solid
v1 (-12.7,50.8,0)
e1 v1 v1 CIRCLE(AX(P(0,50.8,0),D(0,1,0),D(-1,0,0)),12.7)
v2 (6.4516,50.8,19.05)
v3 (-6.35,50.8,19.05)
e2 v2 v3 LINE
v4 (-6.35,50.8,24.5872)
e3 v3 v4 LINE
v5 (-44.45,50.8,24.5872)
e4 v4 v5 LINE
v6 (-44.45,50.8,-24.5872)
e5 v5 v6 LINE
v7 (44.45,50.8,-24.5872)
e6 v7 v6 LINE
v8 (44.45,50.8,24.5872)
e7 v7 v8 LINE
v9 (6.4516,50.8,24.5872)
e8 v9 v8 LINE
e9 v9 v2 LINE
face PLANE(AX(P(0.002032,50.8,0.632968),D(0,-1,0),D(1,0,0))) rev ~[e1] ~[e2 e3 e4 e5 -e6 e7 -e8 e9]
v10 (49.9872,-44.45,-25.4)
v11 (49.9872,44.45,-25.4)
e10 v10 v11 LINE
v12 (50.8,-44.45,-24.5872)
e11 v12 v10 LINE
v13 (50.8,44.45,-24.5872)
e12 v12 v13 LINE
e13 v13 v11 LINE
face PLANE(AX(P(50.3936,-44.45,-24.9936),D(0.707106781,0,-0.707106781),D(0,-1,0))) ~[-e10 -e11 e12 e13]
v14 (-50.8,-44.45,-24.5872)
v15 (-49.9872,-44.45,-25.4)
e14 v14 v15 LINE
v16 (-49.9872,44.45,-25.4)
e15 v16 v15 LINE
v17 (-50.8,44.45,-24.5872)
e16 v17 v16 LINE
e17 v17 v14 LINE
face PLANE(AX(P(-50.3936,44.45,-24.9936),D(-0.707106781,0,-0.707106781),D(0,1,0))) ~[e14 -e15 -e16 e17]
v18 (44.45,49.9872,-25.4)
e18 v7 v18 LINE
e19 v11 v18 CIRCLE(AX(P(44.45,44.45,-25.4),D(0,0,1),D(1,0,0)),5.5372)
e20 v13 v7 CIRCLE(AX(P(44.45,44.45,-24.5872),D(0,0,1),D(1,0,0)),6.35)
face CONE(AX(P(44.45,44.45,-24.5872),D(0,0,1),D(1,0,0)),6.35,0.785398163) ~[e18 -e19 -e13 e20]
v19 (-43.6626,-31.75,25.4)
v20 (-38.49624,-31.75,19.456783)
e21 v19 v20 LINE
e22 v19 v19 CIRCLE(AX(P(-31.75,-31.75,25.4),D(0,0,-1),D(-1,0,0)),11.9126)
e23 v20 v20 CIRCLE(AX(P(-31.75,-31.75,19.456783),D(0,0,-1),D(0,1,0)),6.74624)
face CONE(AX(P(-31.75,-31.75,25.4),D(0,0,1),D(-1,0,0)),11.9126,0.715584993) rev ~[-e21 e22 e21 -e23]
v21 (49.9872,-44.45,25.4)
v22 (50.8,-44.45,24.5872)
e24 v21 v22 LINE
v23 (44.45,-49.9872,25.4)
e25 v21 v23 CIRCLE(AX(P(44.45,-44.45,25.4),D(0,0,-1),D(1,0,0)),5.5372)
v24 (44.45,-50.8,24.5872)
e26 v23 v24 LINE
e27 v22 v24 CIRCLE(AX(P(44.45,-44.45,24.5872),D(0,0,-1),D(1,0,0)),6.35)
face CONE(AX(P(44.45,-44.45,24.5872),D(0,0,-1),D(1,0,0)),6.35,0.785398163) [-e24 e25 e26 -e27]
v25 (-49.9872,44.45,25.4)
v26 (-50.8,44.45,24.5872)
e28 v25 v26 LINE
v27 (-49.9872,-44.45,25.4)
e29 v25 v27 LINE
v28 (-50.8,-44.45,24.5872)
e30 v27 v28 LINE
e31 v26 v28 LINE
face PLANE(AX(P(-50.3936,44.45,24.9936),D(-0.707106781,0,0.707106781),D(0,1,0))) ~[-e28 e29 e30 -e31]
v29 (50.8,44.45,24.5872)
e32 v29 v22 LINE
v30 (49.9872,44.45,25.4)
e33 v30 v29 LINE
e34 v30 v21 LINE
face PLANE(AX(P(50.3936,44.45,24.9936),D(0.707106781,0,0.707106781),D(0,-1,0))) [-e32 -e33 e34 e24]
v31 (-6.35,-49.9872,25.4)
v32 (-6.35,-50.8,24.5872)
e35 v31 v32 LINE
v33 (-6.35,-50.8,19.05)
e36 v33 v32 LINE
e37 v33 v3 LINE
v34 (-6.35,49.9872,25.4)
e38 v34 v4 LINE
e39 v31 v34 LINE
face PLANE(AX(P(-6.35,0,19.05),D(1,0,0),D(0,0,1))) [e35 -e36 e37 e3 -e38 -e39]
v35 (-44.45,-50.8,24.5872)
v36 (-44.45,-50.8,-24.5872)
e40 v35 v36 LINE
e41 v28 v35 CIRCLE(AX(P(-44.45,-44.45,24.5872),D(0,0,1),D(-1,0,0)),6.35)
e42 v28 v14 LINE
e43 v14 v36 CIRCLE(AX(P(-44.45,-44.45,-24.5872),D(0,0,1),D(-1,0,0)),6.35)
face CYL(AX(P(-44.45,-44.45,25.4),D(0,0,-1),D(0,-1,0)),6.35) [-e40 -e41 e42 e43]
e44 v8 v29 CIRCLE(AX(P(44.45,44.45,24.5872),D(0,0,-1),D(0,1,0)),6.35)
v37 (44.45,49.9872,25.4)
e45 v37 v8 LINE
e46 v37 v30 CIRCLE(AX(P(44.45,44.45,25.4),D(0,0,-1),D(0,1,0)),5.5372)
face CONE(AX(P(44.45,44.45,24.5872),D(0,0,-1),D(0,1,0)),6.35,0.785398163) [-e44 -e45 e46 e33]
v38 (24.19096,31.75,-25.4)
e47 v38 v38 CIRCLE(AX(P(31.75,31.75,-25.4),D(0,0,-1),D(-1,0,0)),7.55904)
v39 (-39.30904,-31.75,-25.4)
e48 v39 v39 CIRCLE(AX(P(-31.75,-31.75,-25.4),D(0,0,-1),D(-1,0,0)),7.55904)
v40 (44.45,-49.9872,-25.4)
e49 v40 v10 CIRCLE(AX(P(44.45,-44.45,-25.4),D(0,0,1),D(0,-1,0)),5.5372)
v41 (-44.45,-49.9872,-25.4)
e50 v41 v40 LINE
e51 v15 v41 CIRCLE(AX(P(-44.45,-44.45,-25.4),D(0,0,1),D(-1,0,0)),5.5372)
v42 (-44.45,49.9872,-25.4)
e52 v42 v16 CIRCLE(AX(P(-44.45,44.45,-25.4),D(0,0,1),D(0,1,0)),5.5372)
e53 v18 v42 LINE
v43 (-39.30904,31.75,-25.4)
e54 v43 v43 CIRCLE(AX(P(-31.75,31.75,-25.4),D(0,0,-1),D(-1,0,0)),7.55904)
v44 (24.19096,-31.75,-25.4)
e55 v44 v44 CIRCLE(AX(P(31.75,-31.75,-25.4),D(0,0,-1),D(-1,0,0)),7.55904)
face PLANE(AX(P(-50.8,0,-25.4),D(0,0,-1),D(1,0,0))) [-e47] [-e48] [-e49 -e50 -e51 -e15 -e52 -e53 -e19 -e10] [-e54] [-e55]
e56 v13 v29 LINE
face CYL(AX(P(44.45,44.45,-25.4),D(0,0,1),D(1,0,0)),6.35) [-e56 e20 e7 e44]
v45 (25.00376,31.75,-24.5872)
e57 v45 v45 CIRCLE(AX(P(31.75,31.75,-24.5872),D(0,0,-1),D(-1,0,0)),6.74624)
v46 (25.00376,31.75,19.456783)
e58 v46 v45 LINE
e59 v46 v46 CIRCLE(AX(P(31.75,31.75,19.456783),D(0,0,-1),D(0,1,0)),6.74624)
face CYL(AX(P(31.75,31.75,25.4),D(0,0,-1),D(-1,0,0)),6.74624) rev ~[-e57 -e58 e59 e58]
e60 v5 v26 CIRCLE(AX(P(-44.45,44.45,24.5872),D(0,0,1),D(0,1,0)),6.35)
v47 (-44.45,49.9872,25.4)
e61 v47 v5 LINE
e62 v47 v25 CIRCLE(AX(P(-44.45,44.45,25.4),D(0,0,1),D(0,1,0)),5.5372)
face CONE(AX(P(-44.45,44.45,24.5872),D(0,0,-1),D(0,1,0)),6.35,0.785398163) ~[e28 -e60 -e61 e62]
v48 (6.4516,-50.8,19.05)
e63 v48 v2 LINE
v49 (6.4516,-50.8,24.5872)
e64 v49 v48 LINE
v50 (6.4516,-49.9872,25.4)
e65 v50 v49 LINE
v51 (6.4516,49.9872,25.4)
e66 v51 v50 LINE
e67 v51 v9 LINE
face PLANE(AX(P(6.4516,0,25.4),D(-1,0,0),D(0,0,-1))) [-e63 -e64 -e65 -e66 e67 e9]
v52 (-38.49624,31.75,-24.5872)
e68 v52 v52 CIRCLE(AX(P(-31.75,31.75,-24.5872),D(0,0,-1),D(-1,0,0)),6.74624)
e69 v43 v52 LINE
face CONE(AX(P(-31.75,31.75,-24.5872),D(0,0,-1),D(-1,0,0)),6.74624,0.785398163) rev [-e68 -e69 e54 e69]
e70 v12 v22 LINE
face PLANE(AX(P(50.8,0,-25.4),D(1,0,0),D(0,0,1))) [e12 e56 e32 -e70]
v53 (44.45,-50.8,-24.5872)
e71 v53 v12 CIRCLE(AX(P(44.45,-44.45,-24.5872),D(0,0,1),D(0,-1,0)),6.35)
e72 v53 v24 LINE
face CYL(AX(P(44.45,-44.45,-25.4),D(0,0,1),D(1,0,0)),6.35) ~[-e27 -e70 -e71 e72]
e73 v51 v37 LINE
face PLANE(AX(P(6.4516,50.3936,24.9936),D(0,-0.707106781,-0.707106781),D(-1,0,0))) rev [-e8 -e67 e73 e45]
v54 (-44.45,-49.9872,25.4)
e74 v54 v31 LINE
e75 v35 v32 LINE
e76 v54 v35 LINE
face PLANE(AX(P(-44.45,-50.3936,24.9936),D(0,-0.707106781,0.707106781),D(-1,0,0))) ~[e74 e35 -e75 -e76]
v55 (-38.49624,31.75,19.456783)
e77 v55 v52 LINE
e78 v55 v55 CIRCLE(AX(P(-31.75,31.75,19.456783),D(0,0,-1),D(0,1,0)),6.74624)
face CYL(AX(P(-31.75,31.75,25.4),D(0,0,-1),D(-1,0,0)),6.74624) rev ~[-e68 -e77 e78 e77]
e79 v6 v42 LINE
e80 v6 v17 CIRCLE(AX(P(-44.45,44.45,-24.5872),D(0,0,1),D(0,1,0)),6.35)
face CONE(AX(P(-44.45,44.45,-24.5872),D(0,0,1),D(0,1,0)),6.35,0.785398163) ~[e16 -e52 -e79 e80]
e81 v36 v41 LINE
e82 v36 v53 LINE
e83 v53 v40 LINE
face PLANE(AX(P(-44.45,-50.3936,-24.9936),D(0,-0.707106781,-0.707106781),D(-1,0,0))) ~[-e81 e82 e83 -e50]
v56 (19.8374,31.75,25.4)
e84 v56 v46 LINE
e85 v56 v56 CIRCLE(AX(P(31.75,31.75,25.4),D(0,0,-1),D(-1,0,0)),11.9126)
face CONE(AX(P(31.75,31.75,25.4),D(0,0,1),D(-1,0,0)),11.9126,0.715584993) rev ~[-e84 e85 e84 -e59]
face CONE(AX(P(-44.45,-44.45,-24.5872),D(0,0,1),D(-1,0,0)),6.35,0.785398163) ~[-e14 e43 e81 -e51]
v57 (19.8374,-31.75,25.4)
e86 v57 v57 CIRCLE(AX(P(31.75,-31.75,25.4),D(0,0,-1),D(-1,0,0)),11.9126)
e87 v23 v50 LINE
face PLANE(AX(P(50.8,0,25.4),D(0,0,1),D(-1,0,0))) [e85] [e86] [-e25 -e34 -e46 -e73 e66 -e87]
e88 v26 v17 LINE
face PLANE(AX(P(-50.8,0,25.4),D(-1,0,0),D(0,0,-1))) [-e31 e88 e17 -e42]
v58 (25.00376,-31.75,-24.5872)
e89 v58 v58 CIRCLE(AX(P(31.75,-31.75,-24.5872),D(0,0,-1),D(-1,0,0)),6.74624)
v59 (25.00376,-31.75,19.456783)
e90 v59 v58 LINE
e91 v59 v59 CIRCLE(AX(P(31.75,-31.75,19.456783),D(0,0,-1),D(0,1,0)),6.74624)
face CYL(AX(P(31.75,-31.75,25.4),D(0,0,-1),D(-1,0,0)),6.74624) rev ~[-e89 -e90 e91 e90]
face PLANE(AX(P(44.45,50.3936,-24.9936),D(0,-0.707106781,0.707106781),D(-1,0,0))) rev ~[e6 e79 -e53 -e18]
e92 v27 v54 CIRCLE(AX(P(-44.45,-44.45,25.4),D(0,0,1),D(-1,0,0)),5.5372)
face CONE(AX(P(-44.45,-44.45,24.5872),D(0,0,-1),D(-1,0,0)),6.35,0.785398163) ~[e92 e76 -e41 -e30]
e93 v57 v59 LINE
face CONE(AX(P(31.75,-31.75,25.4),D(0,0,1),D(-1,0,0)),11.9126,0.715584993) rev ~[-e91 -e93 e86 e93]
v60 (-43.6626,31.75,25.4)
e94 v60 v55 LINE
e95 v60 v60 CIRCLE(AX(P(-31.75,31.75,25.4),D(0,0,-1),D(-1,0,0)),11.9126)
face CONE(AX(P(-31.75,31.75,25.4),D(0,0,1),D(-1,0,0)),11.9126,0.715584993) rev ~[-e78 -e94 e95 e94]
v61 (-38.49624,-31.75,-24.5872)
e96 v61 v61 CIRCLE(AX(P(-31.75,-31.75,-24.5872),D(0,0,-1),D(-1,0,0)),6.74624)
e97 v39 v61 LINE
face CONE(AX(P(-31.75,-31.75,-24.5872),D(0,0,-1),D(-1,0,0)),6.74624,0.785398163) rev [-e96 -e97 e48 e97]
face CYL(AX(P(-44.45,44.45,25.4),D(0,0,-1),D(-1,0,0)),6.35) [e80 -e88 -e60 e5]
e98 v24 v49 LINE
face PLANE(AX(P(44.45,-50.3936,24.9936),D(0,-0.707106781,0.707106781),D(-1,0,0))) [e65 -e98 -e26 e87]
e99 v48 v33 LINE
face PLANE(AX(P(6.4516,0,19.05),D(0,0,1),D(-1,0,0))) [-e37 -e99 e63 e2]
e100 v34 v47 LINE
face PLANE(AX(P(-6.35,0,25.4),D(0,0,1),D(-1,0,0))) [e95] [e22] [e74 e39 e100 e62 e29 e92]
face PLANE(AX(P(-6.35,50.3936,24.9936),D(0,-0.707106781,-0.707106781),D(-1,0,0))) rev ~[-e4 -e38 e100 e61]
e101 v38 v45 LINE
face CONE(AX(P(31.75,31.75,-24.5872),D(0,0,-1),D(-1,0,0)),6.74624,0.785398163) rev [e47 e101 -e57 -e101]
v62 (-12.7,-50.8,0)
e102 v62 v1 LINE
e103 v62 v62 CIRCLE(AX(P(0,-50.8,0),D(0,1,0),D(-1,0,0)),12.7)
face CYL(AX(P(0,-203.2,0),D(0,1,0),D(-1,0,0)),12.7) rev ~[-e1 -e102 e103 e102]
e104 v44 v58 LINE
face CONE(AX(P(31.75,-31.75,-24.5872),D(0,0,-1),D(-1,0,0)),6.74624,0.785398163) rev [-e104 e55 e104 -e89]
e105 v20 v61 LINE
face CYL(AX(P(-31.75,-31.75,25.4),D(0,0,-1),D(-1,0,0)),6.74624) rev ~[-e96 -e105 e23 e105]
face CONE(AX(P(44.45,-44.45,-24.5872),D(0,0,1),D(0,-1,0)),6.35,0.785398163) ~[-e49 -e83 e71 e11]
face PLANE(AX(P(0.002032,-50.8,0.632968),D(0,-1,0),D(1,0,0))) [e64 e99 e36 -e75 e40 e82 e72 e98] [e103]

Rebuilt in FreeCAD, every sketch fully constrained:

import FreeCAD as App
import Part
import Sketcher
from FreeCAD import Vector
Q = App.Units.Quantity


def edges_at(feature, points):
    """Names of the edges that pass closest to the given points."""
    edges = feature.Shape.Edges
    near = lambda p: min(range(len(edges)), key=lambda i: edges[i].distToShape(Part.Vertex(*p))[0])
    return sorted({f"Edge{near(p) + 1}" for p in points})


def add_polygon(sketch, points):
    """Adds a closed chain of lines whose ends are joined by coincident constraints."""
    first, n = sketch.GeometryCount, len(points)
    for a, b in zip(points, points[1:] + points[:1]):
        sketch.addGeometry(Part.LineSegment(App.Vector(*a, 0), App.Vector(*b, 0)), False)
    for i in range(n):
        sketch.addConstraint(Sketcher.Constraint("Coincident", first + i, 2, first + (i + 1) % n, 1))

doc = App.newDocument("Part")
body = doc.addObject("PartDesign::Body", "Body")

sketch1 = body.newObject("Sketcher::SketchObject", "Sketch")
sketch1.AttachmentSupport = (doc.getObject("XZ_Plane"), [""])
sketch1.MapMode = "FlatFace"
add_polygon(sketch1, [(-6, 25), (-51, 25), (-51, -25), (51, -25), (51, 25), (6, 25), (6, 19), (-6, 19)])
sketch1.addConstraint([
    Sketcher.Constraint("Horizontal", 0),
    Sketcher.Constraint("Vertical", 1),
    Sketcher.Constraint("Horizontal", 2),
    Sketcher.Constraint("Vertical", 3),
    Sketcher.Constraint("Horizontal", 4),
    Sketcher.Constraint("Vertical", 5),
    Sketcher.Constraint("Horizontal", 6),
    Sketcher.Constraint("Vertical", 7),
    Sketcher.Constraint("Symmetric", 0, 2, 2, 2, -1, 1),
    Sketcher.Constraint("Horizontal", 0, 2, 3, 2),
    Sketcher.Constraint("DistanceX", 2, 1, 2, 2, Q("4 in")),
    Sketcher.Constraint("DistanceY", 1, 2, 1, 1, Q("2 in")),
    Sketcher.Constraint("DistanceX", 0, 2, 0, 1, Q("1.75 in")),
    Sketcher.Constraint("DistanceY", 5, 2, 5, 1, Q("0.25 in")),
    Sketcher.Constraint("DistanceX", 4, 2, 4, 1, Q("1.746 in")),
])
pad1 = body.newObject("PartDesign::Pad", "Pad")
pad1.Profile = sketch1
pad1.Length = Q("4 in")
pad1.Midplane = True

sketch2 = body.newObject("Sketcher::SketchObject", "Sketch001")
sketch2.AttachmentSupport = (doc.getObject("XY_Plane"), [""])
sketch2.MapMode = "FlatFace"
sketch2.AttachmentOffset = App.Placement(Vector(0, 0, 1 * 25.4), App.Rotation())
sketch2.addGeometry([
    Part.Circle(Vector(-32, 32, 0), Vector(0, 0, 1), 7),
    Part.Circle(Vector(32, 32, 0), Vector(0, 0, 1), 7),
    Part.Circle(Vector(-32, -32, 0), Vector(0, 0, 1), 7),
    Part.Circle(Vector(32, -32, 0), Vector(0, 0, 1), 7),
], False)
sketch2.addConstraint([
    Sketcher.Constraint("Equal", 0, 1),
    Sketcher.Constraint("Equal", 1, 2),
    Sketcher.Constraint("Equal", 2, 3),
    Sketcher.Constraint("Symmetric", 1, 3, 2, 3, -1, 1),
    Sketcher.Constraint("Symmetric", 0, 3, 3, 3, -1, 1),
    Sketcher.Constraint("Symmetric", 0, 3, 1, 3, -2),
    Sketcher.Constraint("Diameter", 0, Q("0.5312 in")),
    Sketcher.Constraint("DistanceX", 0, 3, 1, 3, Q("2.5 in")),
    Sketcher.Constraint("DistanceY", 2, 3, 0, 3, Q("2.5 in")),
])
doc.recompute()
hole = body.newObject("PartDesign::Hole", "Hole")
hole.Profile = sketch2
hole.ThreadType = "None"
hole.Diameter = Q("0.5312 in")
hole.DepthType = "ThroughAll"
hole.HoleCutType = "Countersink"
hole.HoleCutDiameter = Q("0.938 in")
hole.HoleCutCountersinkAngle = 82
doc.recompute()

fillet = body.newObject("PartDesign::Fillet", "Fillet")
fillet.Base = (hole, edges_at(hole, [
    (50.8, 50.8, 0),
    (50.8, -50.8, 0),
    (-50.8, -50.8, 0),
    (-50.8, 50.8, 0),
]))
fillet.Radius = Q("0.25 in")
doc.recompute()

chamfer = body.newObject("PartDesign::Chamfer", "Chamfer")
chamfer.Base = (fillet, edges_at(fillet, [
    (-50.8, 0, 25.4),
    (50.8, 0, 25.4),
    (-25.4, 50.8, 25.4),
    (25.451, 50.8, 25.4),
    (-25.4, -50.8, 25.4),
    (25.451, -50.8, 25.4),
    (-50.8, 0, -25.4),
    (-48.94, 48.94, -25.4),
    (-48.94, -48.94, -25.4),
    (0, 50.8, -25.4),
    (0, -50.8, -25.4),
    (48.94, 48.94, -25.4),
    (48.94, -48.94, -25.4),
    (50.8, 0, -25.4),
    (-25.004, 31.75, -25.4),
    (38.496, 31.75, -25.4),
    (-25.004, -31.75, -25.4),
    (38.496, -31.75, -25.4),
]))
chamfer.Size = Q("0.032 in")

sketch3 = body.newObject("Sketcher::SketchObject", "Sketch002")
sketch3.AttachmentSupport = (doc.getObject("XZ_Plane"), [""])
sketch3.MapMode = "FlatFace"
sketch3.AttachmentOffset = App.Placement(Vector(0, 0, 2 * 25.4), App.Rotation())
sketch3.addGeometry(Part.Circle(Vector(0, 0, 0), Vector(0, 0, 1), 13), False)
sketch3.addConstraint([
    Sketcher.Constraint("Coincident", 0, 3, -1, 1),
    Sketcher.Constraint("Diameter", 0, Q("1 in")),
])
doc.recompute()
hole2 = body.newObject("PartDesign::Hole", "Hole001")
hole2.Profile = sketch3
hole2.ThreadType = "None"
hole2.Diameter = Q("1 in")
hole2.DepthType = "ThroughAll"

doc.recompute()
